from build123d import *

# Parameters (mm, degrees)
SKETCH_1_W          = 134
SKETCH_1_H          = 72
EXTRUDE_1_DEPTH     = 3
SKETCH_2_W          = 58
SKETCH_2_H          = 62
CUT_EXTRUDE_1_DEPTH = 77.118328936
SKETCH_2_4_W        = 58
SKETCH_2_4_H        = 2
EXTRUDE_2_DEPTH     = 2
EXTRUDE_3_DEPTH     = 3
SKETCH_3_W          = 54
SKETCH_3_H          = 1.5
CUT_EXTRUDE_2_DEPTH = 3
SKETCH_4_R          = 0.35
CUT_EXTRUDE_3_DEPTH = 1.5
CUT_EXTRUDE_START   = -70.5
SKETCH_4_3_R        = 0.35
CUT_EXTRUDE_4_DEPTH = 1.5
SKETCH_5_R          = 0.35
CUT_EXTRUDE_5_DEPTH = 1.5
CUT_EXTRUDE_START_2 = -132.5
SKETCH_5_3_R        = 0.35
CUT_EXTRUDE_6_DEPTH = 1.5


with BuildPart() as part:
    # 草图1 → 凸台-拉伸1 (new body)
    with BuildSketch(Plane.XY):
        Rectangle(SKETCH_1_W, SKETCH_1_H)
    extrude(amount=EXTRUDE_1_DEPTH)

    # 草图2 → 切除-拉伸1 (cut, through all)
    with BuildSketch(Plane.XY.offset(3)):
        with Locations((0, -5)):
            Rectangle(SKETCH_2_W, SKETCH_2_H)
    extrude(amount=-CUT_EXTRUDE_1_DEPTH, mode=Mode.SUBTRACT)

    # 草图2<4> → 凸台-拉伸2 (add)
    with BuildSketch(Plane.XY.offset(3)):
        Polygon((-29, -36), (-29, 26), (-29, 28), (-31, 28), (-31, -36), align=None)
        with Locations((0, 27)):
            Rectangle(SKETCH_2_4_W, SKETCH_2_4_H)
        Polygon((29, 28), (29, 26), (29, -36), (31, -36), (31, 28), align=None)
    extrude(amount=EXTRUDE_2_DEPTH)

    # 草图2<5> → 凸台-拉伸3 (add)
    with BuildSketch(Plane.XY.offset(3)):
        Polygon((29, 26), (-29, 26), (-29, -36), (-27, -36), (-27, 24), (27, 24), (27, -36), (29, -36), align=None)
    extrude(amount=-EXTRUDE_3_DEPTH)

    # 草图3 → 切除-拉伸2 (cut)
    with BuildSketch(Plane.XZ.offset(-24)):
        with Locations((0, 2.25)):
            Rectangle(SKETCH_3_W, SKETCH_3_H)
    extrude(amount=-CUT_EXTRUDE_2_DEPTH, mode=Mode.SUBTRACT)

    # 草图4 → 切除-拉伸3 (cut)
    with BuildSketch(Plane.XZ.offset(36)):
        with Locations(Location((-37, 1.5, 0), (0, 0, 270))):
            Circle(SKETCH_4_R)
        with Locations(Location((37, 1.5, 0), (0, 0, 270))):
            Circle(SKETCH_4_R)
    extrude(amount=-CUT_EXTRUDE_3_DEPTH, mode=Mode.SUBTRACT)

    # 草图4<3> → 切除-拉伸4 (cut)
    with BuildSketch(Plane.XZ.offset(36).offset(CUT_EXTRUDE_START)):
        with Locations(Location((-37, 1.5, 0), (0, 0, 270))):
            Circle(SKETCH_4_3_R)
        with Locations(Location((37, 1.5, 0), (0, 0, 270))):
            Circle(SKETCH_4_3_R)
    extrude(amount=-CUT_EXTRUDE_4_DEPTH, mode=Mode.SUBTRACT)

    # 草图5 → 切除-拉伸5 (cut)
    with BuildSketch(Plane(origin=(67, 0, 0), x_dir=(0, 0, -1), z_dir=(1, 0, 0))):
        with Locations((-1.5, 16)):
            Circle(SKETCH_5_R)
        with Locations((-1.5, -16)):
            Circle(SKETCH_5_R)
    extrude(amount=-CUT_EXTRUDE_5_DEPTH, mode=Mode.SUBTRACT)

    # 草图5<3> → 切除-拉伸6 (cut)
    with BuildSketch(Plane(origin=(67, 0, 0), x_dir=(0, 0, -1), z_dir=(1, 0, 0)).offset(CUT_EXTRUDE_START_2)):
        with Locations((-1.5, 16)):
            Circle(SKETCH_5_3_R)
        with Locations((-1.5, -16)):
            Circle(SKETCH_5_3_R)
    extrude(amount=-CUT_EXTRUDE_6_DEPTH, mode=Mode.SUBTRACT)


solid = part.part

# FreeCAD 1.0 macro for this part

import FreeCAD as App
import Part
import Sketcher

V = App.Vector
Q = App.Units.Quantity

doc = App.newDocument("Part")
body = doc.addObject("PartDesign::Body", "Body")

sketch1 = body.newObject("Sketcher::SketchObject", "Sketch")
sketch1.AttachmentSupport = (doc.getObject("XY_Plane"), [""])
sketch1.MapMode = "FlatFace"
sketch1.addGeometry(Part.LineSegment(V(-67, 36, 0), V(-67, -36, 0)), False)
sketch1.addGeometry(Part.LineSegment(V(-67, -36, 0), V(67, -36, 0)), False)
sketch1.addGeometry(Part.LineSegment(V(67, -36, 0), V(67, 36, 0)), False)
sketch1.addGeometry(Part.LineSegment(V(67, 36, 0), V(-67, 36, 0)), False)
sketch1.addConstraint(Sketcher.Constraint("Coincident", 0, 2, 1, 1))
sketch1.addConstraint(Sketcher.Constraint("Coincident", 1, 2, 2, 1))
sketch1.addConstraint(Sketcher.Constraint("Coincident", 2, 2, 3, 1))
sketch1.addConstraint(Sketcher.Constraint("Coincident", 3, 2, 0, 1))
sketch1.addConstraint(Sketcher.Constraint("Vertical", 0))
sketch1.addConstraint(Sketcher.Constraint("Horizontal", 1))
sketch1.addConstraint(Sketcher.Constraint("Vertical", 2))
sketch1.addConstraint(Sketcher.Constraint("Horizontal", 3))
sketch1.addConstraint(Sketcher.Constraint("Symmetric", 0, 2, 2, 2, -1, 1))
sketch1.addConstraint(Sketcher.Constraint("DistanceX", 1, 1, 1, 2, Q("134 mm")))
sketch1.addConstraint(Sketcher.Constraint("DistanceY", 0, 2, 0, 1, Q("72 mm")))
pad1 = body.newObject("PartDesign::Pad", "Pad")
pad1.Profile = sketch1
pad1.Length = 3

sketch2 = body.newObject("Sketcher::SketchObject", "Sketch001")
sketch2.AttachmentSupport = (doc.getObject("XY_Plane"), [""])
sketch2.MapMode = "FlatFace"
sketch2.AttachmentOffset = App.Placement(V(0, 0, 3), App.Rotation())
sketch2.addGeometry(Part.LineSegment(V(-29, 26, 0), V(-29, -36, 0)), False)
sketch2.addGeometry(Part.LineSegment(V(-29, -36, 0), V(29, -36, 0)), False)
sketch2.addGeometry(Part.LineSegment(V(29, -36, 0), V(29, 26, 0)), False)
sketch2.addGeometry(Part.LineSegment(V(29, 26, 0), V(-29, 26, 0)), False)
sketch2.addConstraint(Sketcher.Constraint("Coincident", 0, 2, 1, 1))
sketch2.addConstraint(Sketcher.Constraint("Coincident", 1, 2, 2, 1))
sketch2.addConstraint(Sketcher.Constraint("Coincident", 2, 2, 3, 1))
sketch2.addConstraint(Sketcher.Constraint("Coincident", 3, 2, 0, 1))
sketch2.addConstraint(Sketcher.Constraint("Vertical", 0))
sketch2.addConstraint(Sketcher.Constraint("Horizontal", 1))
sketch2.addConstraint(Sketcher.Constraint("Vertical", 2))
sketch2.addConstraint(Sketcher.Constraint("Horizontal", 3))
sketch2.addConstraint(Sketcher.Constraint("DistanceX", 1, 1, 1, 2, Q("58 mm")))
sketch2.addConstraint(Sketcher.Constraint("DistanceY", 0, 2, 0, 1, Q("62 mm")))
sketch2.addConstraint(Sketcher.Constraint("DistanceX", 0, 2, -1, 1, Q("29 mm")))
sketch2.addConstraint(Sketcher.Constraint("DistanceY", 0, 2, -1, 1, Q("36 mm")))
pocket1 = body.newObject("PartDesign::Pocket", "Pocket")
pocket1.Profile = sketch2
pocket1.Type = "ThroughAll"

sketch3 = body.newObject("Sketcher::SketchObject", "Sketch002")
sketch3.AttachmentSupport = (doc.getObject("XY_Plane"), [""])
sketch3.MapMode = "FlatFace"
sketch3.AttachmentOffset = App.Placement(V(0, 0, 3), App.Rotation())
sketch3.addGeometry(Part.LineSegment(V(-29, -36, 0), V(-29, 26, 0)), False)
sketch3.addGeometry(Part.LineSegment(V(-29, 26, 0), V(29, 26, 0)), False)
sketch3.addGeometry(Part.LineSegment(V(29, 26, 0), V(29, -36, 0)), False)
sketch3.addGeometry(Part.LineSegment(V(29, -36, 0), V(31, -36, 0)), False)
sketch3.addGeometry(Part.LineSegment(V(31, -36, 0), V(31, 28, 0)), False)
sketch3.addGeometry(Part.LineSegment(V(31, 28, 0), V(-31, 28, 0)), False)
sketch3.addGeometry(Part.LineSegment(V(-31, 28, 0), V(-31, -36, 0)), False)
sketch3.addGeometry(Part.LineSegment(V(-31, -36, 0), V(-29, -36, 0)), False)
sketch3.addConstraint(Sketcher.Constraint("Coincident", 0, 2, 1, 1))
sketch3.addConstraint(Sketcher.Constraint("Coincident", 1, 2, 2, 1))
sketch3.addConstraint(Sketcher.Constraint("Coincident", 2, 2, 3, 1))
sketch3.addConstraint(Sketcher.Constraint("Coincident", 3, 2, 4, 1))
sketch3.addConstraint(Sketcher.Constraint("Coincident", 4, 2, 5, 1))
sketch3.addConstraint(Sketcher.Constraint("Coincident", 5, 2, 6, 1))
sketch3.addConstraint(Sketcher.Constraint("Coincident", 6, 2, 7, 1))
sketch3.addConstraint(Sketcher.Constraint("Coincident", 7, 2, 0, 1))
sketch3.addConstraint(Sketcher.Constraint("Vertical", 0))
sketch3.addConstraint(Sketcher.Constraint("Horizontal", 1))
sketch3.addConstraint(Sketcher.Constraint("Vertical", 2))
sketch3.addConstraint(Sketcher.Constraint("Horizontal", 3))
sketch3.addConstraint(Sketcher.Constraint("Vertical", 4))
sketch3.addConstraint(Sketcher.Constraint("Horizontal", 5))
sketch3.addConstraint(Sketcher.Constraint("Vertical", 6))
sketch3.addConstraint(Sketcher.Constraint("Horizontal", 7))
sketch3.addConstraint(Sketcher.Constraint("Symmetric", 3, 2, 6, 2, -2))
sketch3.addConstraint(Sketcher.Constraint("Equal", 3, 7))
sketch3.addConstraint(Sketcher.Constraint("Equal", 5, 0))
sketch3.addConstraint(Sketcher.Constraint("DistanceX", 1, 1, 1, 2, Q("58 mm")))
sketch3.addConstraint(Sketcher.Constraint("DistanceX", 3, 1, 3, 2, Q("2 mm")))
sketch3.addConstraint(Sketcher.Constraint("DistanceY", 4, 1, 4, 2, Q("64 mm")))
sketch3.addConstraint(Sketcher.Constraint("DistanceY", -1, 1, 0, 2, Q("26 mm")))
pad2 = body.newObject("PartDesign::Pad", "Pad001")
pad2.Profile = sketch3
pad2.Length = 2

sketch4 = body.newObject("Sketcher::SketchObject", "Sketch003")
sketch4.AttachmentSupport = (doc.getObject("XY_Plane"), [""])
sketch4.MapMode = "FlatFace"
sketch4.AttachmentOffset = App.Placement(V(0, 0, 3), App.Rotation())
sketch4.addGeometry(Part.LineSegment(V(29, 26, 0), V(-29, 26, 0)), False)
sketch4.addGeometry(Part.LineSegment(V(-29, 26, 0), V(-29, -36, 0)), False)
sketch4.addGeometry(Part.LineSegment(V(-29, -36, 0), V(-27, -36, 0)), False)
sketch4.addGeometry(Part.LineSegment(V(-27, -36, 0), V(-27, 24, 0)), False)
sketch4.addGeometry(Part.LineSegment(V(-27, 24, 0), V(27, 24, 0)), False)
sketch4.addGeometry(Part.LineSegment(V(27, 24, 0), V(27, -36, 0)), False)
sketch4.addGeometry(Part.LineSegment(V(27, -36, 0), V(29, -36, 0)), False)
sketch4.addGeometry(Part.LineSegment(V(29, -36, 0), V(29, 26, 0)), False)
sketch4.addConstraint(Sketcher.Constraint("Coincident", 0, 2, 1, 1))
sketch4.addConstraint(Sketcher.Constraint("Coincident", 1, 2, 2, 1))
sketch4.addConstraint(Sketcher.Constraint("Coincident", 2, 2, 3, 1))
sketch4.addConstraint(Sketcher.Constraint("Coincident", 3, 2, 4, 1))
sketch4.addConstraint(Sketcher.Constraint("Coincident", 4, 2, 5, 1))
sketch4.addConstraint(Sketcher.Constraint("Coincident", 5, 2, 6, 1))
sketch4.addConstraint(Sketcher.Constraint("Coincident", 6, 2, 7, 1))
sketch4.addConstraint(Sketcher.Constraint("Coincident", 7, 2, 0, 1))
sketch4.addConstraint(Sketcher.Constraint("Horizontal", 0))
sketch4.addConstraint(Sketcher.Constraint("Vertical", 1))
sketch4.addConstraint(Sketcher.Constraint("Horizontal", 2))
sketch4.addConstraint(Sketcher.Constraint("Vertical", 3))
sketch4.addConstraint(Sketcher.Constraint("Horizontal", 4))
sketch4.addConstraint(Sketcher.Constraint("Vertical", 5))
sketch4.addConstraint(Sketcher.Constraint("Horizontal", 6))
sketch4.addConstraint(Sketcher.Constraint("Vertical", 7))
sketch4.addConstraint(Sketcher.Constraint("Symmetric", 2, 2, 5, 2, -2))
sketch4.addConstraint(Sketcher.Constraint("Equal", 2, 6))
sketch4.addConstraint(Sketcher.Constraint("DistanceX", 0, 2, 0, 1, Q("58 mm")))
sketch4.addConstraint(Sketcher.Constraint("DistanceX", 2, 1, 2, 2, Q("2 mm")))
sketch4.addConstraint(Sketcher.Constraint("DistanceY", 1, 2, 1, 1, Q("62 mm")))
sketch4.addConstraint(Sketcher.Constraint("DistanceY", 3, 1, 3, 2, Q("60 mm")))
sketch4.addConstraint(Sketcher.Constraint("DistanceY", -1, 1, 0, 2, Q("26 mm")))
pad3 = body.newObject("PartDesign::Pad", "Pad002")
pad3.Profile = sketch4
pad3.Length = 3
pad3.Reversed = True

sketch5 = body.newObject("Sketcher::SketchObject", "Sketch004")
sketch5.AttachmentSupport = (doc.getObject("XZ_Plane"), [""])
sketch5.MapMode = "FlatFace"
sketch5.AttachmentOffset = App.Placement(V(0, 0, -24), App.Rotation())
sketch5.addGeometry(Part.LineSegment(V(-27, 3, 0), V(-27, 1.5, 0)), False)
sketch5.addGeometry(Part.LineSegment(V(-27, 1.5, 0), V(27, 1.5, 0)), False)
sketch5.addGeometry(Part.LineSegment(V(27, 1.5, 0), V(27, 3, 0)), False)
sketch5.addGeometry(Part.LineSegment(V(27, 3, 0), V(-27, 3, 0)), False)
sketch5.addConstraint(Sketcher.Constraint("Coincident", 0, 2, 1, 1))
sketch5.addConstraint(Sketcher.Constraint("Coincident", 1, 2, 2, 1))
sketch5.addConstraint(Sketcher.Constraint("Coincident", 2, 2, 3, 1))
sketch5.addConstraint(Sketcher.Constraint("Coincident", 3, 2, 0, 1))
sketch5.addConstraint(Sketcher.Constraint("Vertical", 0))
sketch5.addConstraint(Sketcher.Constraint("Horizontal", 1))
sketch5.addConstraint(Sketcher.Constraint("Vertical", 2))
sketch5.addConstraint(Sketcher.Constraint("Horizontal", 3))
sketch5.addConstraint(Sketcher.Constraint("DistanceX", 1, 1, 1, 2, Q("54 mm")))
sketch5.addConstraint(Sketcher.Constraint("DistanceY", 0, 2, 0, 1, Q("1.5 mm")))
sketch5.addConstraint(Sketcher.Constraint("DistanceX", 0, 2, -1, 1, Q("27 mm")))
sketch5.addConstraint(Sketcher.Constraint("DistanceY", -1, 1, 2, 2, Q("3 mm")))
pocket2 = body.newObject("PartDesign::Pocket", "Pocket001")
pocket2.Profile = sketch5
pocket2.Length = 3

sketch6 = body.newObject("Sketcher::SketchObject", "Sketch005")
sketch6.AttachmentSupport = (doc.getObject("XZ_Plane"), [""])
sketch6.MapMode = "FlatFace"
sketch6.AttachmentOffset = App.Placement(V(0, 0, 36), App.Rotation())
sketch6.addGeometry(Part.Circle(V(-37, 1.5, 0), V(0, 0, 1), 0.35), False)
sketch6.addGeometry(Part.Circle(V(37, 1.5, 0), V(0, 0, 1), 0.35), False)
sketch6.addConstraint(Sketcher.Constraint("Equal", 0, 1))
sketch6.addConstraint(Sketcher.Constraint("Symmetric", 0, 3, 1, 3, -2))
sketch6.addConstraint(Sketcher.Constraint("Diameter", 0, Q("0.7 mm")))
sketch6.addConstraint(Sketcher.Constraint("DistanceX", 0, 3, -1, 1, Q("37 mm")))
sketch6.addConstraint(Sketcher.Constraint("DistanceY", -1, 1, 0, 3, Q("1.5 mm")))
pocket3 = body.newObject("PartDesign::Pocket", "Pocket002")
pocket3.Profile = sketch6
pocket3.Length = 1.5

sketch7 = body.newObject("Sketcher::SketchObject", "Sketch006")
sketch7.AttachmentSupport = (doc.getObject("XZ_Plane"), [""])
sketch7.MapMode = "FlatFace"
sketch7.AttachmentOffset = App.Placement(V(0, 0, -34.5), App.Rotation())
sketch7.addGeometry(Part.Circle(V(-37, 1.5, 0), V(0, 0, 1), 0.35), False)
sketch7.addGeometry(Part.Circle(V(37, 1.5, 0), V(0, 0, 1), 0.35), False)
sketch7.addConstraint(Sketcher.Constraint("Equal", 0, 1))
sketch7.addConstraint(Sketcher.Constraint("Symmetric", 0, 3, 1, 3, -2))
sketch7.addConstraint(Sketcher.Constraint("Diameter", 0, Q("0.7 mm")))
sketch7.addConstraint(Sketcher.Constraint("DistanceX", 0, 3, -1, 1, Q("37 mm")))
sketch7.addConstraint(Sketcher.Constraint("DistanceY", -1, 1, 0, 3, Q("1.5 mm")))
pocket4 = body.newObject("PartDesign::Pocket", "Pocket003")
pocket4.Profile = sketch7
pocket4.Length = 1.5

sketch8 = body.newObject("Sketcher::SketchObject", "Sketch007")
sketch8.AttachmentSupport = (doc.getObject("YZ_Plane"), [""])
sketch8.MapMode = "FlatFace"
sketch8.AttachmentOffset = App.Placement(V(0, 0, 67), App.Rotation())
sketch8.addGeometry(Part.Circle(V(16, 1.5, 0), V(0, 0, 1), 0.35), False)
sketch8.addGeometry(Part.Circle(V(-16, 1.5, 0), V(0, 0, 1), 0.35), False)
sketch8.addConstraint(Sketcher.Constraint("Equal", 0, 1))
sketch8.addConstraint(Sketcher.Constraint("Symmetric", 0, 3, 1, 3, -2))
sketch8.addConstraint(Sketcher.Constraint("Diameter", 0, Q("0.7 mm")))
sketch8.addConstraint(Sketcher.Constraint("DistanceX", -1, 1, 0, 3, Q("16 mm")))
sketch8.addConstraint(Sketcher.Constraint("DistanceY", -1, 1, 0, 3, Q("1.5 mm")))
pocket5 = body.newObject("PartDesign::Pocket", "Pocket004")
pocket5.Profile = sketch8
pocket5.Length = 1.5

sketch9 = body.newObject("Sketcher::SketchObject", "Sketch008")
sketch9.AttachmentSupport = (doc.getObject("YZ_Plane"), [""])
sketch9.MapMode = "FlatFace"
sketch9.AttachmentOffset = App.Placement(V(0, 0, -65.5), App.Rotation())
sketch9.addGeometry(Part.Circle(V(16, 1.5, 0), V(0, 0, 1), 0.35), False)
sketch9.addGeometry(Part.Circle(V(-16, 1.5, 0), V(0, 0, 1), 0.35), False)
sketch9.addConstraint(Sketcher.Constraint("Equal", 0, 1))
sketch9.addConstraint(Sketcher.Constraint("Symmetric", 0, 3, 1, 3, -2))
sketch9.addConstraint(Sketcher.Constraint("Diameter", 0, Q("0.7 mm")))
sketch9.addConstraint(Sketcher.Constraint("DistanceX", -1, 1, 0, 3, Q("16 mm")))
sketch9.addConstraint(Sketcher.Constraint("DistanceY", -1, 1, 0, 3, Q("1.5 mm")))
pocket6 = body.newObject("PartDesign::Pocket", "Pocket005")
pocket6.Profile = sketch9
pocket6.Length = 1.5

doc.recompute()
